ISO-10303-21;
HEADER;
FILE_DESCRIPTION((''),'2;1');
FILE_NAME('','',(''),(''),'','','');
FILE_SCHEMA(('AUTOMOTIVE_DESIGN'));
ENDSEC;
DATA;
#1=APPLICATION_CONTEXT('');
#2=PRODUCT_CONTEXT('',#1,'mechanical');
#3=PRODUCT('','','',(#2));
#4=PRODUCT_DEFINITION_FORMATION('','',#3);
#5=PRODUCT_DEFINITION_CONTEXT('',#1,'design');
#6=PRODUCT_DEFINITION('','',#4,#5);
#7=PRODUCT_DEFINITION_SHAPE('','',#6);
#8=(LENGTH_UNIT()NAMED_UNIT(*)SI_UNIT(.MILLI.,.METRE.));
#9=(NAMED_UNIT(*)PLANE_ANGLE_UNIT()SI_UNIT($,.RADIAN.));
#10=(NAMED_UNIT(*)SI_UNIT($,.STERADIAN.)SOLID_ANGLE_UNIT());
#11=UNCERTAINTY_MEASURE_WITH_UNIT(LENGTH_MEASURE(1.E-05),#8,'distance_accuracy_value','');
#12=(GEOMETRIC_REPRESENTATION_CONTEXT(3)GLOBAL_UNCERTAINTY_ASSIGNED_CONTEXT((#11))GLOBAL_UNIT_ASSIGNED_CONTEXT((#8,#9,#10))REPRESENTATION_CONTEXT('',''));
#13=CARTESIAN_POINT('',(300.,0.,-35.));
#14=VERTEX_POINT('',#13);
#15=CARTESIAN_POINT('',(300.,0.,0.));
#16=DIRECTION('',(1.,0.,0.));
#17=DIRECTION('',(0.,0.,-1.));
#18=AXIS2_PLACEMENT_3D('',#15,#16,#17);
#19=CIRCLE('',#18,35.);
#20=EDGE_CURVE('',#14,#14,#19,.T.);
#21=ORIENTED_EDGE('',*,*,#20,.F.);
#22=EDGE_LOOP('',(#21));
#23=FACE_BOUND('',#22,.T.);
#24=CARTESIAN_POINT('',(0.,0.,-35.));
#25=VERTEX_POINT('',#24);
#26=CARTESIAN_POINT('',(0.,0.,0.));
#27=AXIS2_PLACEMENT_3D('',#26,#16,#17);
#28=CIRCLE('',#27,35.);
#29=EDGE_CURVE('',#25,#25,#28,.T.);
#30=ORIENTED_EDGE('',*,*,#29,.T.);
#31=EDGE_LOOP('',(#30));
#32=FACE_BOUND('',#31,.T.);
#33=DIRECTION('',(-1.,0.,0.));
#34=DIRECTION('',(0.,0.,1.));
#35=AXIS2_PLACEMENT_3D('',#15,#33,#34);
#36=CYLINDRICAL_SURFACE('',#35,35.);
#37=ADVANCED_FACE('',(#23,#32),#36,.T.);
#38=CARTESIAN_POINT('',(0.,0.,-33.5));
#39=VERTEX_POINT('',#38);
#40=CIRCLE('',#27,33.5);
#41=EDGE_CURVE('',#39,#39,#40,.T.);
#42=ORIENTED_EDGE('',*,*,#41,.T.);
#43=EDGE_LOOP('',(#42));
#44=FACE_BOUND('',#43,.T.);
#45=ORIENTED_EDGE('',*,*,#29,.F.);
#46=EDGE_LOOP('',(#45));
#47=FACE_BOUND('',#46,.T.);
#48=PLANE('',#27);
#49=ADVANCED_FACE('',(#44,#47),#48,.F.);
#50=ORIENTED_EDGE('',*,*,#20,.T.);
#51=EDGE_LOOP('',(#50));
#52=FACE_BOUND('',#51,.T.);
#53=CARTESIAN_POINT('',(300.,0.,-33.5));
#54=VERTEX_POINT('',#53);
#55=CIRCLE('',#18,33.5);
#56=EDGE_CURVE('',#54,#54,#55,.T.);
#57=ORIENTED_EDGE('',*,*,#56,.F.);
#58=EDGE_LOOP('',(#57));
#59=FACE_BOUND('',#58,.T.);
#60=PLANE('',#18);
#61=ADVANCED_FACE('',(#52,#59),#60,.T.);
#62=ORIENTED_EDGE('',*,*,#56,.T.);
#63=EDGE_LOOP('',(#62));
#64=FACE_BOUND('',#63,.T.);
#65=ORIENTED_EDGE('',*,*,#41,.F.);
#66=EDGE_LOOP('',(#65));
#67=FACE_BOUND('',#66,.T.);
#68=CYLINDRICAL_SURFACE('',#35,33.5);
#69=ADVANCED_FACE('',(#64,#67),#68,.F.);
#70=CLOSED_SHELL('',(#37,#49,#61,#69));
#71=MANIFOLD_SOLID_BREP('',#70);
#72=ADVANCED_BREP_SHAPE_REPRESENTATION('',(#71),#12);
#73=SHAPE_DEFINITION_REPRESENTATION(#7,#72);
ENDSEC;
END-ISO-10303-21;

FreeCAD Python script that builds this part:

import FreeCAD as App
import Part
import Sketcher
from FreeCAD import Vector

doc = App.newDocument("Part")
body = doc.addObject("PartDesign::Body", "Body")

sketch1 = doc.addObject("Sketcher::SketchObject", "Sketch")
body.addObject(sketch1)
sketch1.AttachmentSupport = (doc.YZ_Plane, [""])
sketch1.MapMode = "FlatFace"
sketch1.addGeometry(Part.Circle(Vector(0, 0, 0), Vector(0, 0, 1), 35), False)
sketch1.addGeometry(Part.Circle(Vector(0, 0, 0), Vector(0, 0, 1), 34), False)
sketch1.addConstraint(Sketcher.Constraint("Coincident", 0, 3, -1, 1))
sketch1.addConstraint(Sketcher.Constraint("Coincident", 1, 3, -1, 1))
sketch1.addConstraint(Sketcher.Constraint("Diameter", 0, 70.0))
sketch1.addConstraint(Sketcher.Constraint("Diameter", 1, 67.0))
pad1 = doc.addObject("PartDesign::Pad", "Pad")
body.addObject(pad1)
pad1.Profile = sketch1
pad1.Length = 300

doc.recompute()
